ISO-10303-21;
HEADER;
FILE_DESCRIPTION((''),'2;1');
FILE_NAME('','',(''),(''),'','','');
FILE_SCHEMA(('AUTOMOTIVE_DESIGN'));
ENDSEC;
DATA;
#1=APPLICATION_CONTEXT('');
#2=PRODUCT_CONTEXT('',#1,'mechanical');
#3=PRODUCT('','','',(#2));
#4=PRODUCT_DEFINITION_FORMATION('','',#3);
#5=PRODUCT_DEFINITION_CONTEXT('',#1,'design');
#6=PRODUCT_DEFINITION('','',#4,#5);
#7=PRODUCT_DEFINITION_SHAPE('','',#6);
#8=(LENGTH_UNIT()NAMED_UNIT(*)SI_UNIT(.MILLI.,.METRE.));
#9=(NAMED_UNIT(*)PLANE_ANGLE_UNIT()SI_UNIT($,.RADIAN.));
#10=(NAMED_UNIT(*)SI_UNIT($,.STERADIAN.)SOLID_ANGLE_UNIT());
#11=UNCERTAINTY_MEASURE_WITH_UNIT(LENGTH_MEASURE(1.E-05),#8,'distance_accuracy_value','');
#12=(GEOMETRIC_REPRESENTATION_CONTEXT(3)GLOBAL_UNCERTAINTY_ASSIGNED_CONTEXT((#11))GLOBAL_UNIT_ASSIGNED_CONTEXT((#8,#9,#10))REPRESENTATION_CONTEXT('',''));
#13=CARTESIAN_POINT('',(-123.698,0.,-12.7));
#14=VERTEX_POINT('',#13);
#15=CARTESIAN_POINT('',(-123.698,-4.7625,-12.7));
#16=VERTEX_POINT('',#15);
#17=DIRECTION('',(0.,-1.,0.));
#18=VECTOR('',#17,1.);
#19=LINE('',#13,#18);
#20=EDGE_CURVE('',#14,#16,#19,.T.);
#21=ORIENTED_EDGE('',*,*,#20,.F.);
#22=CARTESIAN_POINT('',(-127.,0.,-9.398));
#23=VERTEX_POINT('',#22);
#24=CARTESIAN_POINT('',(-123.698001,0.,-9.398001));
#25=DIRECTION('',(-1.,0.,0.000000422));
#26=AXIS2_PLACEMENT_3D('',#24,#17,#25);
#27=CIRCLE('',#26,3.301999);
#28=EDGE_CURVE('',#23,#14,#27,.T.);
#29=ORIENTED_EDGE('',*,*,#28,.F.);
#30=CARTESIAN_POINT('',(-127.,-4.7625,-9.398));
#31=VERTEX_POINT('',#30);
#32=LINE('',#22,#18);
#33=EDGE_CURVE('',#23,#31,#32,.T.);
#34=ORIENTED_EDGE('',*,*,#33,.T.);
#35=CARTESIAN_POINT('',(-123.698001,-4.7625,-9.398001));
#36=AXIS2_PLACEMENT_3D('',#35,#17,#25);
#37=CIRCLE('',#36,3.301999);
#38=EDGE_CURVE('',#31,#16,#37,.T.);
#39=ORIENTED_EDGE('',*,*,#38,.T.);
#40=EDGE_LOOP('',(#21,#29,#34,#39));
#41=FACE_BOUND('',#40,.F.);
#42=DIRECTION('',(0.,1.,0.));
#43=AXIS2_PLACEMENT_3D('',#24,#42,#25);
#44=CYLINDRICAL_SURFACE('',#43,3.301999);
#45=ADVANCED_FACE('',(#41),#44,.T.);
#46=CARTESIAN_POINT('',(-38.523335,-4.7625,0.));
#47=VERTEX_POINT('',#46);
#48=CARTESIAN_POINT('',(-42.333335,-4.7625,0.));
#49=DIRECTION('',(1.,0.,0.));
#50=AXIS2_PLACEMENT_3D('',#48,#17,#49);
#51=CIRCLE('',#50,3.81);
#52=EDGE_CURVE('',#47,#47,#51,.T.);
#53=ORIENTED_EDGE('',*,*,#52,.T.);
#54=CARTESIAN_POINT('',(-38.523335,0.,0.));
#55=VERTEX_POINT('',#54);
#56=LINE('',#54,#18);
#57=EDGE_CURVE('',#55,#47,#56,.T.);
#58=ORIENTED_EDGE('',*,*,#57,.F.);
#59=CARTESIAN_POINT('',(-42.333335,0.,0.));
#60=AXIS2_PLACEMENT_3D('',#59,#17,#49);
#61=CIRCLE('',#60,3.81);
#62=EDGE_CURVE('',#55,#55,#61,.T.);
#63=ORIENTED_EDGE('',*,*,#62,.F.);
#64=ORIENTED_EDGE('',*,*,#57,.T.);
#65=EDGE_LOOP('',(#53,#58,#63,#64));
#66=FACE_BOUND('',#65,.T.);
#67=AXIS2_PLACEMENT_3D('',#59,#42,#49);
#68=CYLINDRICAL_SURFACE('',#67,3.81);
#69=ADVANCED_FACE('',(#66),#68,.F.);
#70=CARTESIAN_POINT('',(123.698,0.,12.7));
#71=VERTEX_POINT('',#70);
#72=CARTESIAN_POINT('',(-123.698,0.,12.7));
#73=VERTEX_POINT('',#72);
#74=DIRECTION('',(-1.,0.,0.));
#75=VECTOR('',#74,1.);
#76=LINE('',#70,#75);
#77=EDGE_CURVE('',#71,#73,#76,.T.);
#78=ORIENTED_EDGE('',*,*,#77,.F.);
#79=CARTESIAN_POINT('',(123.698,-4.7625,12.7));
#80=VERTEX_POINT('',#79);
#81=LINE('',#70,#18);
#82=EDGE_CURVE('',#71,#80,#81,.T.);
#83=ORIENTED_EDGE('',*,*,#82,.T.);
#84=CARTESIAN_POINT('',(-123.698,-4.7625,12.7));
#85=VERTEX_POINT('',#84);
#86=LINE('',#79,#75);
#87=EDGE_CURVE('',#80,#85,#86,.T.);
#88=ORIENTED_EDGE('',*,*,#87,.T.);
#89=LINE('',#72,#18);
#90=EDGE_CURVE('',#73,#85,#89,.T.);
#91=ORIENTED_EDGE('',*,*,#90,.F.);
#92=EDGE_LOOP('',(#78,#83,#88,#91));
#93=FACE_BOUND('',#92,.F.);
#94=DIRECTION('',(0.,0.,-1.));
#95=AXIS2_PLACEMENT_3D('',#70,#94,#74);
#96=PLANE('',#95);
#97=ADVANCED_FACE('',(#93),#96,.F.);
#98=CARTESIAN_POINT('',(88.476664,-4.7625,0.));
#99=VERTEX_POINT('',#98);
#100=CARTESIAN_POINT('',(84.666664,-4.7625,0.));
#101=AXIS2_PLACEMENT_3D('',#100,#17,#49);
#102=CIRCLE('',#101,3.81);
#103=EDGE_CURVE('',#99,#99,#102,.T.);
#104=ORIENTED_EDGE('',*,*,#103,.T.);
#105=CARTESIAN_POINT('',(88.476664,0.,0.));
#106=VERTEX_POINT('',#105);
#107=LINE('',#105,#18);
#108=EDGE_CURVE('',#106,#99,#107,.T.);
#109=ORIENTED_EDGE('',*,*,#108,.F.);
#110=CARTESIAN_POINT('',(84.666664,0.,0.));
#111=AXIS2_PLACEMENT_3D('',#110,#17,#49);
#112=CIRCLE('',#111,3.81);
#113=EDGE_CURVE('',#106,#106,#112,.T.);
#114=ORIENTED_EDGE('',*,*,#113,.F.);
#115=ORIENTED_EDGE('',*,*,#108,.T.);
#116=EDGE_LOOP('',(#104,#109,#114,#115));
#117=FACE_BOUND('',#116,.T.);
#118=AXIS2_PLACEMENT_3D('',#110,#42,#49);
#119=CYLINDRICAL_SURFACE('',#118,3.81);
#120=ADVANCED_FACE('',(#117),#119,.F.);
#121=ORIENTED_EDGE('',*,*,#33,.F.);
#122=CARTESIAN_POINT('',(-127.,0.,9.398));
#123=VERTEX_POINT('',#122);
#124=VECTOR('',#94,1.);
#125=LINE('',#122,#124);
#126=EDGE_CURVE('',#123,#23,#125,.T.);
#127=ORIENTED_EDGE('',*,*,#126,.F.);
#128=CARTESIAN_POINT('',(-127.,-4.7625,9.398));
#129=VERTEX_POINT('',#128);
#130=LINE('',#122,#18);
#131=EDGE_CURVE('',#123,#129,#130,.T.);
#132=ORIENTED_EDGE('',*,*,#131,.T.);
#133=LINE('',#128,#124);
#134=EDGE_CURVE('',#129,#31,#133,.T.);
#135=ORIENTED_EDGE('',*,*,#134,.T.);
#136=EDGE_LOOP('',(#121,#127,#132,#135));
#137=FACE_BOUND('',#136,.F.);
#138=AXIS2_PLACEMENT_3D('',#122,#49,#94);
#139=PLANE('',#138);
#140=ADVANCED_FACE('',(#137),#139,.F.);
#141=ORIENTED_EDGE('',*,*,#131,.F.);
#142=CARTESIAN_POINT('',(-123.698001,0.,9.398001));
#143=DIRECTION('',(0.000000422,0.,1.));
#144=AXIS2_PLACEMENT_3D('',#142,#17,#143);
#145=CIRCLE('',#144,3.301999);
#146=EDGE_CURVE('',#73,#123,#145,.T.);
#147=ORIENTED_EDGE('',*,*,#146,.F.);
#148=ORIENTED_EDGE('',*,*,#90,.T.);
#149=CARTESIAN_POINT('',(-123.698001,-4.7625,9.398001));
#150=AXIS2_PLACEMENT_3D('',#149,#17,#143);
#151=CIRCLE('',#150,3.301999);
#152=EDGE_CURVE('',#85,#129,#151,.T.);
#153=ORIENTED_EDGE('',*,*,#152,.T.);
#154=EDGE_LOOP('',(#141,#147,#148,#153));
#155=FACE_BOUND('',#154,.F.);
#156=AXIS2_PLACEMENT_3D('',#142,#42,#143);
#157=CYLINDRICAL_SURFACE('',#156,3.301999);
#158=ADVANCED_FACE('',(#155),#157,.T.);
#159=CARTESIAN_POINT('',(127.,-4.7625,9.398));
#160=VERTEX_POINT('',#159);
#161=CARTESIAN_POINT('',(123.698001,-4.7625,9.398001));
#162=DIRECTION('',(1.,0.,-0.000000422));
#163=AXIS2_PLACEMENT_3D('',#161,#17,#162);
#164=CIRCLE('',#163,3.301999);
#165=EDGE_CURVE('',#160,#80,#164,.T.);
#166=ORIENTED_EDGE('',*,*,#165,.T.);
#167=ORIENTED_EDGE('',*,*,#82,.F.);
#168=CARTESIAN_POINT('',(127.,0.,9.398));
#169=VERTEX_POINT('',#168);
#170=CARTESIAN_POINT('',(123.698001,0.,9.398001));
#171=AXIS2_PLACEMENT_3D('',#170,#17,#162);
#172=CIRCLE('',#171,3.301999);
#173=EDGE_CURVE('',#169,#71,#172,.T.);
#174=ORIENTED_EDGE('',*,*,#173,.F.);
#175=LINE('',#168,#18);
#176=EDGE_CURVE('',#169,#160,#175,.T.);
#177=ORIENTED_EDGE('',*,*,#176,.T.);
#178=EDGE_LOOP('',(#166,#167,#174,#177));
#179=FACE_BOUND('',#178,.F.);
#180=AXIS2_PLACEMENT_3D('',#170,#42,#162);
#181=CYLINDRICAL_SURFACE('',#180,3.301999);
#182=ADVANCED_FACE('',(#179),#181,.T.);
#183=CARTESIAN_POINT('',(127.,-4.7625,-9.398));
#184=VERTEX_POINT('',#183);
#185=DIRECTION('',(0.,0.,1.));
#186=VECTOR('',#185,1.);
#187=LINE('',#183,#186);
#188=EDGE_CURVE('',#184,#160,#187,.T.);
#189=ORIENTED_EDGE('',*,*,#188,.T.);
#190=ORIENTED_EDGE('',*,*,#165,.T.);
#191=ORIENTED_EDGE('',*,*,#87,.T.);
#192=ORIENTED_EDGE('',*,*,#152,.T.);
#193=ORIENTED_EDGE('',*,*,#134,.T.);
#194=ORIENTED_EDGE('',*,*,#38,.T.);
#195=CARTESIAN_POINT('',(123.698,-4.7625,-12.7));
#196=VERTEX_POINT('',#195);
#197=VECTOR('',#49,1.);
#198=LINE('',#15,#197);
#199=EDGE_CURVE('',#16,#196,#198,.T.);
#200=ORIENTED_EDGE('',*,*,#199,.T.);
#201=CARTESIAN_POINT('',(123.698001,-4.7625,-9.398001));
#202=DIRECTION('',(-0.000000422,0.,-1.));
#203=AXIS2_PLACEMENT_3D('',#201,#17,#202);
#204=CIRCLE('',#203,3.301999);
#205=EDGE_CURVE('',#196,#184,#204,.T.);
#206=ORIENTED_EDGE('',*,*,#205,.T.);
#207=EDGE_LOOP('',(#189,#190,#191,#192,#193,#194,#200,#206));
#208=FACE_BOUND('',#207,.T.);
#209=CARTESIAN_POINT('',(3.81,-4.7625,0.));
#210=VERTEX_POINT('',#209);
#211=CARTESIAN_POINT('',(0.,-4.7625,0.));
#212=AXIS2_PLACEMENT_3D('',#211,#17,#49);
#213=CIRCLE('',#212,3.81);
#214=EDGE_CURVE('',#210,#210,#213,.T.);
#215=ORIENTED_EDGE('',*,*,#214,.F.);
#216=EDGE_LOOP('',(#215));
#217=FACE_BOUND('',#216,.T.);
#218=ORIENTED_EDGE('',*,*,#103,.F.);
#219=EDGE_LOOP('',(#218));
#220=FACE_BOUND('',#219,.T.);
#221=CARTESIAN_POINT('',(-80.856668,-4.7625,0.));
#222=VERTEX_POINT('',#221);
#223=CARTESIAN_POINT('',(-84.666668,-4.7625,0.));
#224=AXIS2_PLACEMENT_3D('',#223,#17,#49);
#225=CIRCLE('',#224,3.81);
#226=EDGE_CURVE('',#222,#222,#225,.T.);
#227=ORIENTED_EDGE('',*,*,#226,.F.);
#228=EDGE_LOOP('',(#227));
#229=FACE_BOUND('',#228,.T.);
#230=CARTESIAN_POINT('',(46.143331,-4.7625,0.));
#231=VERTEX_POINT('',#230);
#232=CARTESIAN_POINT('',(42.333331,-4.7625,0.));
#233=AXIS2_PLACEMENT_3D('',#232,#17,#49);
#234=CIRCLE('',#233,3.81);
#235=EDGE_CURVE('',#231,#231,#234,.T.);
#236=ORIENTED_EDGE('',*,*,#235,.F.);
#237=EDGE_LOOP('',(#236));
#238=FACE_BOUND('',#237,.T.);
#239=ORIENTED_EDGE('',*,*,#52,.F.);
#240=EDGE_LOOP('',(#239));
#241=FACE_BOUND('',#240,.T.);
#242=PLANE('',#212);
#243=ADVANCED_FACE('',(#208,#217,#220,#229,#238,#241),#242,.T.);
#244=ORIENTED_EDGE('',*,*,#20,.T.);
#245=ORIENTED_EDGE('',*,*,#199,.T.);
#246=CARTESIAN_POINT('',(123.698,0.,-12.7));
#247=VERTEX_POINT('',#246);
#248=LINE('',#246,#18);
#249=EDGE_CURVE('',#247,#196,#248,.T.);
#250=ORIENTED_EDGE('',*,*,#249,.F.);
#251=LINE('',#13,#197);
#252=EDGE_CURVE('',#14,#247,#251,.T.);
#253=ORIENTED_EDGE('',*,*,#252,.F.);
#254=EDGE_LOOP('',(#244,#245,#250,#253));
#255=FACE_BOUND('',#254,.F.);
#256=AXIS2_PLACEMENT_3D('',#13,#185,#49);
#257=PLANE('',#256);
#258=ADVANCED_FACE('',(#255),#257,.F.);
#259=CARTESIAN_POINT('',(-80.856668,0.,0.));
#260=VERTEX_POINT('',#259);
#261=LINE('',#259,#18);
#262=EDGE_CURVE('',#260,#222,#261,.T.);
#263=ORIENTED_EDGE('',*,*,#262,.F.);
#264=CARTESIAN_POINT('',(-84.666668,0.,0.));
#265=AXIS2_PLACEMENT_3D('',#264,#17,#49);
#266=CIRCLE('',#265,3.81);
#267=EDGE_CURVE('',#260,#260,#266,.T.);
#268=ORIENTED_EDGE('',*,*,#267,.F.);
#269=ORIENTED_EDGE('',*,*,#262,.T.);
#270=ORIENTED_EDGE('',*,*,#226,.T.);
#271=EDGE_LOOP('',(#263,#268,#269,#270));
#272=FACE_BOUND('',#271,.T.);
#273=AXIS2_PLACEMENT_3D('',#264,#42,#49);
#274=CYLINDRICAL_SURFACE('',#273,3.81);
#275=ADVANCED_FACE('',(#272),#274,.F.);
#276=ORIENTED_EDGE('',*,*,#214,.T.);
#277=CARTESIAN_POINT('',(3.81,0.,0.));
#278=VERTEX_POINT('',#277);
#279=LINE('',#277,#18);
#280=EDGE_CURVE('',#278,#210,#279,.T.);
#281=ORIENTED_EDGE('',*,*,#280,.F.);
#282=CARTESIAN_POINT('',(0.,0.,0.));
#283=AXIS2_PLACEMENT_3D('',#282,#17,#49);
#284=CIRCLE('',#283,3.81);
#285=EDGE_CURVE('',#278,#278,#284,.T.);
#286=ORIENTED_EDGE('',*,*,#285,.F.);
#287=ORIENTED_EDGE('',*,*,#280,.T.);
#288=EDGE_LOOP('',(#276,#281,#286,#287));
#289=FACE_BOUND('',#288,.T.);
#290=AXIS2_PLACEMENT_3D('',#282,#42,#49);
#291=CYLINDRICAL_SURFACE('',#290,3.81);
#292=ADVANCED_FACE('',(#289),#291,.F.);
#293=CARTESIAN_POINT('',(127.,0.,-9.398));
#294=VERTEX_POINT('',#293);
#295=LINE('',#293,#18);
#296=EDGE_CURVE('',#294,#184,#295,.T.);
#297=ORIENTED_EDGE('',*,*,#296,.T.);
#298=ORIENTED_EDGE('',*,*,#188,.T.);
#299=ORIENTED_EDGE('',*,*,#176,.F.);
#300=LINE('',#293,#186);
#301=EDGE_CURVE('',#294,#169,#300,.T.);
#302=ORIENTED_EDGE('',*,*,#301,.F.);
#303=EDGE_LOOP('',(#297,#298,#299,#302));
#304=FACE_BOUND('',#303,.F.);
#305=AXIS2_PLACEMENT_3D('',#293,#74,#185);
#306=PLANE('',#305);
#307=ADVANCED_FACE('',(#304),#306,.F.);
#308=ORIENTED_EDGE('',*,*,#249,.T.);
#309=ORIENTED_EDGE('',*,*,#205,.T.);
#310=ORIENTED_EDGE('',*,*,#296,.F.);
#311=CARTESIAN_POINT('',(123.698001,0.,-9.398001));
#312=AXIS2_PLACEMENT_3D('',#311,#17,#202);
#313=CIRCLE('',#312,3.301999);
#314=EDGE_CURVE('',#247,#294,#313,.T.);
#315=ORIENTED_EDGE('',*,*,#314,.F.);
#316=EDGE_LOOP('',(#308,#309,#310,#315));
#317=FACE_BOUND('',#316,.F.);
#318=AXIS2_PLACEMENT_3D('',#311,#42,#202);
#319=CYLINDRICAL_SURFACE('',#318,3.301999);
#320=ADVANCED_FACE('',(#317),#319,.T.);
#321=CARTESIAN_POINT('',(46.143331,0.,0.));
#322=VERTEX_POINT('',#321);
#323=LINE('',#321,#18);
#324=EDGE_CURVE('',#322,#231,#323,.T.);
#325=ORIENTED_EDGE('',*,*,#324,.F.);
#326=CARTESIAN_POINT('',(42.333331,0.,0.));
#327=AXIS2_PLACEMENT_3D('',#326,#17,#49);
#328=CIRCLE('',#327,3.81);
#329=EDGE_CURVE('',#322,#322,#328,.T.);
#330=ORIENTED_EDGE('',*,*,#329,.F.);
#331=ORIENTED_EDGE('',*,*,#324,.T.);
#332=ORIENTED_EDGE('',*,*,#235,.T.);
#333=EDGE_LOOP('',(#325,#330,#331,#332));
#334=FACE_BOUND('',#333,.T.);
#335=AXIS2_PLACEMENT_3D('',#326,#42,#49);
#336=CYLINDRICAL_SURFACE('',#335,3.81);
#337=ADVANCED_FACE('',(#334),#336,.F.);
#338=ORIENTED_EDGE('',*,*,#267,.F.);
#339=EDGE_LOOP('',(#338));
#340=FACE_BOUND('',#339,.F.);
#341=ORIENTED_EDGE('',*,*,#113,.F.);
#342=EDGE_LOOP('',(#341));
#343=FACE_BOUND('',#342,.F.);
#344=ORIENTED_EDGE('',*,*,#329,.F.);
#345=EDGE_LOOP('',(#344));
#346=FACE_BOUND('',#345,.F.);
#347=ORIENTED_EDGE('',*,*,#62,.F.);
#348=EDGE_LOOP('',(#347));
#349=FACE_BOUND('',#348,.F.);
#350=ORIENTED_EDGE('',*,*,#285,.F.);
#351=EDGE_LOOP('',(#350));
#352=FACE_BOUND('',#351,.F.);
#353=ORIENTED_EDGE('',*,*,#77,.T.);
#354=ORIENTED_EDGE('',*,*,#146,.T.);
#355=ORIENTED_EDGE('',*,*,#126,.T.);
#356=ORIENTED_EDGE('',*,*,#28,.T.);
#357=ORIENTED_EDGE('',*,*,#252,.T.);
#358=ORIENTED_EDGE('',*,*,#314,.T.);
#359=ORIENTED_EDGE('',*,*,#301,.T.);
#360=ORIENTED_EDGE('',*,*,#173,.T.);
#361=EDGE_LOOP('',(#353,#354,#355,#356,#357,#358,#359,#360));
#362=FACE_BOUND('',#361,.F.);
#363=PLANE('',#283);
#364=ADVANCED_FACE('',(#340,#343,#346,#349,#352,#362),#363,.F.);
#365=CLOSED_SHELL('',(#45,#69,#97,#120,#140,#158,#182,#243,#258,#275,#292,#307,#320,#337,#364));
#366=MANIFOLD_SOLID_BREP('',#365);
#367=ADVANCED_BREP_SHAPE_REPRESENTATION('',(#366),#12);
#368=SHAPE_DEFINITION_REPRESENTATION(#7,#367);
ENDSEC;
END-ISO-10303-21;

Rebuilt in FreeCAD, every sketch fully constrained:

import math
import FreeCAD as App
import Part
import Sketcher
Q = App.Units.Quantity

doc = App.newDocument("Part")
body = doc.addObject("PartDesign::Body", "Body")

sketch1 = doc.addObject("Sketcher::SketchObject", "Sketch")
body.addObject(sketch1)
sketch1.AttachmentSupport = (doc.XZ_Plane, [""])
sketch1.MapMode = "FlatFace"
sketch1.addGeometry([
    Part.ArcOfCircle(Part.Circle(App.Vector(123.7, 9.4, 0), App.Vector(0, 0, 1), 3.3), math.radians(0), math.radians(90)),
    Part.LineSegment(App.Vector(123.7, 12.7, 0), App.Vector(-123.7, 12.7, 0)),
    Part.ArcOfCircle(Part.Circle(App.Vector(-123.7, 9.4, 0), App.Vector(0, 0, 1), 3.3), math.radians(90), math.radians(180)),
    Part.LineSegment(App.Vector(-127, 9.4, 0), App.Vector(-127, -9.4, 0)),
    Part.ArcOfCircle(Part.Circle(App.Vector(-123.7, -9.4, 0), App.Vector(0, 0, 1), 3.3), math.radians(180), math.radians(270)),
    Part.LineSegment(App.Vector(-123.7, -12.7, 0), App.Vector(123.7, -12.7, 0)),
    Part.ArcOfCircle(Part.Circle(App.Vector(123.7, -9.4, 0), App.Vector(0, 0, 1), 3.3), math.radians(-90), math.radians(0)),
    Part.LineSegment(App.Vector(127, -9.4, 0), App.Vector(127, 9.4, 0)),
    Part.Circle(App.Vector(-84.7, 0, 0), App.Vector(0, 0, 1), 3.8),
    Part.Circle(App.Vector(-42.3, 0, 0), App.Vector(0, 0, 1), 3.8),
    Part.Circle(App.Vector(0, 0, 0), App.Vector(0, 0, 1), 3.8),
    Part.Circle(App.Vector(42.3, 0, 0), App.Vector(0, 0, 1), 3.8),
    Part.Circle(App.Vector(84.7, 0, 0), App.Vector(0, 0, 1), 3.8),
], False)
sketch1.addConstraint([
    Sketcher.Constraint("Tangent", 0, 2, 1, 1),
    Sketcher.Constraint("Tangent", 1, 2, 2, 1),
    Sketcher.Constraint("Tangent", 2, 2, 3, 1),
    Sketcher.Constraint("Tangent", 3, 2, 4, 1),
    Sketcher.Constraint("Tangent", 4, 2, 5, 1),
    Sketcher.Constraint("Tangent", 5, 2, 6, 1),
    Sketcher.Constraint("Tangent", 6, 2, 7, 1),
    Sketcher.Constraint("Tangent", 7, 2, 0, 1),
    Sketcher.Constraint("Horizontal", 1),
    Sketcher.Constraint("Vertical", 3),
    Sketcher.Constraint("Horizontal", 5),
    Sketcher.Constraint("Vertical", 7),
    Sketcher.Constraint("Coincident", 10, 3, -1, 1),
    Sketcher.Constraint("Equal", 0, 2),
    Sketcher.Constraint("Equal", 2, 4),
    Sketcher.Constraint("Equal", 4, 6),
    Sketcher.Constraint("Equal", 8, 9),
    Sketcher.Constraint("Equal", 9, 10),
    Sketcher.Constraint("Equal", 10, 11),
    Sketcher.Constraint("Equal", 11, 12),
    Sketcher.Constraint("Symmetric", 0, 3, 4, 3, -1, 1),
    Sketcher.Constraint("Symmetric", 9, 3, 11, 3, -1, 1),
    Sketcher.Constraint("Symmetric", 8, 3, 12, 3, -1, 1),
    Sketcher.Constraint("PointOnObject", 8, 3, -1),
    Sketcher.Constraint("PointOnObject", 9, 3, -1),
    Sketcher.Constraint("Diameter", 8, Q("0.3 in")),
    Sketcher.Constraint("Radius", 0, Q("0.1299999 in")),
    Sketcher.Constraint("DistanceX", 2, 2, -1, 1, Q("5 in")),
    Sketcher.Constraint("DistanceX", 8, 3, 11, 3, Q("5 in")),
    Sketcher.Constraint("DistanceY", 4, 2, 1, 2, Q("1 in")),
    Sketcher.Constraint("DistanceX", 8, 3, -1, 1, Q("84.666668 mm")),
])
pad1 = doc.addObject("PartDesign::Pad", "Pad")
body.addObject(pad1)
pad1.Profile = sketch1
pad1.Length = Q("0.1875 in")

doc.recompute()
